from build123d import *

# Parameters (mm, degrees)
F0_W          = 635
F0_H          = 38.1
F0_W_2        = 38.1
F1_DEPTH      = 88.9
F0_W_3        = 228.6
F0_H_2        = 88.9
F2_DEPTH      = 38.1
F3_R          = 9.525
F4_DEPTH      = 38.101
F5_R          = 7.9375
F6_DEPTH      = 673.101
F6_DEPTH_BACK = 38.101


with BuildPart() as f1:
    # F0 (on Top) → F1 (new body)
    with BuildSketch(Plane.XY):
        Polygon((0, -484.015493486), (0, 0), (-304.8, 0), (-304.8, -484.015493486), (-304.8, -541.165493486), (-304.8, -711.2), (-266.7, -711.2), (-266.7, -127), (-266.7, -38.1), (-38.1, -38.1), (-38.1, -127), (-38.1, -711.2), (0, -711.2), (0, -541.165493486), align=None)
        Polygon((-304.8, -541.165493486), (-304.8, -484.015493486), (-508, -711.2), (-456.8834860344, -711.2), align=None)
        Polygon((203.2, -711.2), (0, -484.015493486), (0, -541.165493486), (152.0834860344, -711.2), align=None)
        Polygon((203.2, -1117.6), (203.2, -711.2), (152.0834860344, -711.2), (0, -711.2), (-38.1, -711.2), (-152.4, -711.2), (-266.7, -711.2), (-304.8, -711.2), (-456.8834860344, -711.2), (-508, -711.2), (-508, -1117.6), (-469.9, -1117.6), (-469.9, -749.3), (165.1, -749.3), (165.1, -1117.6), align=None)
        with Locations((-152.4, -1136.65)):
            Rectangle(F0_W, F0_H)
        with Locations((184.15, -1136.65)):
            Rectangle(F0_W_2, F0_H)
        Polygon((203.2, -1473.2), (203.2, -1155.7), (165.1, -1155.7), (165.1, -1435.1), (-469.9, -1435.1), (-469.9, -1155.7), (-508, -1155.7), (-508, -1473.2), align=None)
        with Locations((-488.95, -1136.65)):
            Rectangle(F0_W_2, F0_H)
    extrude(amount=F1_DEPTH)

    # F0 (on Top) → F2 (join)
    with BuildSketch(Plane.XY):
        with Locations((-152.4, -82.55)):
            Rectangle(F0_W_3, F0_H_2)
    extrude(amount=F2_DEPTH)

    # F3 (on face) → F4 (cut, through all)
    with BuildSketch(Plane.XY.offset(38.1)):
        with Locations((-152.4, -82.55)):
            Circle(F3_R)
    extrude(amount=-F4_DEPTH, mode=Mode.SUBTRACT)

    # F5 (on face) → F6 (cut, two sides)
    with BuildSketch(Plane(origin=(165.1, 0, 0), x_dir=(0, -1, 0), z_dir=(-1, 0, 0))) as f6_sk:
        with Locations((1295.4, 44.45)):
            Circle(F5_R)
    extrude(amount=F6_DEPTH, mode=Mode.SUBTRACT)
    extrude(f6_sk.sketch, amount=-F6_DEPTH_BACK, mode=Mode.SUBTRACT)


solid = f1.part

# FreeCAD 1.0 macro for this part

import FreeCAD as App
import Part
import Sketcher

V = App.Vector
Q = App.Units.Quantity

doc = App.newDocument("Part")
body = doc.addObject("PartDesign::Body", "Body")

# Sketch on XY plane
sketch1 = doc.addObject("Sketcher::SketchObject", "Sketch")
body.addObject(sketch1)
sketch1.AttachmentSupport = (doc.XY_Plane, [""])
sketch1.MapMode = "FlatFace"
sketch1.addGeometry(Part.LineSegment(V(-508, -711.2, 0), V(-508, -1473.2, 0)), False)
sketch1.addGeometry(Part.LineSegment(V(-508, -1473.2, 0), V(203.2, -1473.2, 0)), False)
sketch1.addGeometry(Part.LineSegment(V(203.2, -1473.2, 0), V(203.2, -711.2, 0)), False)
sketch1.addGeometry(Part.LineSegment(V(203.2, -711.2, 0), V(0, -484.015493, 0)), False)
sketch1.addGeometry(Part.LineSegment(V(0, -484.015493, 0), V(0, 0, 0)), False)
sketch1.addGeometry(Part.LineSegment(V(0, 0, 0), V(-304.8, 0, 0)), False)
sketch1.addGeometry(Part.LineSegment(V(-304.8, 0, 0), V(-304.8, -484.015493, 0)), False)
sketch1.addGeometry(Part.LineSegment(V(-304.8, -484.015493, 0), V(-508, -711.2, 0)), False)
sketch1.addGeometry(Part.LineSegment(V(-469.9, -1435.1, 0), V(-469.9, -1155.7, 0)), False)
sketch1.addGeometry(Part.LineSegment(V(-469.9, -1155.7, 0), V(165.1, -1155.7, 0)), False)
sketch1.addGeometry(Part.LineSegment(V(165.1, -1155.7, 0), V(165.1, -1435.1, 0)), False)
sketch1.addGeometry(Part.LineSegment(V(165.1, -1435.1, 0), V(-469.9, -1435.1, 0)), False)
sketch1.addGeometry(Part.LineSegment(V(165.1, -1117.6, 0), V(-469.9, -1117.6, 0)), False)
sketch1.addGeometry(Part.LineSegment(V(-469.9, -1117.6, 0), V(-469.9, -749.3, 0)), False)
sketch1.addGeometry(Part.LineSegment(V(-469.9, -749.3, 0), V(165.1, -749.3, 0)), False)
sketch1.addGeometry(Part.LineSegment(V(165.1, -749.3, 0), V(165.1, -1117.6, 0)), False)
sketch1.addGeometry(Part.LineSegment(V(-456.883486, -711.2, 0), V(-304.8, -541.165493, 0)), False)
sketch1.addGeometry(Part.LineSegment(V(-304.8, -541.165493, 0), V(-304.8, -711.2, 0)), False)
sketch1.addGeometry(Part.LineSegment(V(-304.8, -711.2, 0), V(-456.883486, -711.2, 0)), False)
sketch1.addGeometry(Part.LineSegment(V(0, -711.2, 0), V(0, -541.165493, 0)), False)
sketch1.addGeometry(Part.LineSegment(V(0, -541.165493, 0), V(152.083486, -711.2, 0)), False)
sketch1.addGeometry(Part.LineSegment(V(152.083486, -711.2, 0), V(0, -711.2, 0)), False)
sketch1.addGeometry(Part.LineSegment(V(-266.7, -711.2, 0), V(-266.7, -38.1, 0)), False)
sketch1.addGeometry(Part.LineSegment(V(-266.7, -38.1, 0), V(-38.1, -38.1, 0)), False)
sketch1.addGeometry(Part.LineSegment(V(-38.1, -38.1, 0), V(-38.1, -711.2, 0)), False)
sketch1.addGeometry(Part.LineSegment(V(-38.1, -711.2, 0), V(-266.7, -711.2, 0)), False)
sketch1.addConstraint(Sketcher.Constraint("Coincident", 0, 2, 1, 1))
sketch1.addConstraint(Sketcher.Constraint("Coincident", 1, 2, 2, 1))
sketch1.addConstraint(Sketcher.Constraint("Coincident", 2, 2, 3, 1))
sketch1.addConstraint(Sketcher.Constraint("Coincident", 3, 2, 4, 1))
sketch1.addConstraint(Sketcher.Constraint("Coincident", 4, 2, 5, 1))
sketch1.addConstraint(Sketcher.Constraint("Coincident", 5, 2, 6, 1))
sketch1.addConstraint(Sketcher.Constraint("Coincident", 6, 2, 7, 1))
sketch1.addConstraint(Sketcher.Constraint("Coincident", 7, 2, 0, 1))
sketch1.addConstraint(Sketcher.Constraint("Coincident", 8, 2, 9, 1))
sketch1.addConstraint(Sketcher.Constraint("Coincident", 9, 2, 10, 1))
sketch1.addConstraint(Sketcher.Constraint("Coincident", 10, 2, 11, 1))
sketch1.addConstraint(Sketcher.Constraint("Coincident", 11, 2, 8, 1))
sketch1.addConstraint(Sketcher.Constraint("Coincident", 12, 2, 13, 1))
sketch1.addConstraint(Sketcher.Constraint("Coincident", 13, 2, 14, 1))
sketch1.addConstraint(Sketcher.Constraint("Coincident", 14, 2, 15, 1))
sketch1.addConstraint(Sketcher.Constraint("Coincident", 15, 2, 12, 1))
sketch1.addConstraint(Sketcher.Constraint("Coincident", 16, 2, 17, 1))
sketch1.addConstraint(Sketcher.Constraint("Coincident", 17, 2, 18, 1))
sketch1.addConstraint(Sketcher.Constraint("Coincident", 18, 2, 16, 1))
sketch1.addConstraint(Sketcher.Constraint("Coincident", 19, 2, 20, 1))
sketch1.addConstraint(Sketcher.Constraint("Coincident", 20, 2, 21, 1))
sketch1.addConstraint(Sketcher.Constraint("Coincident", 21, 2, 19, 1))
sketch1.addConstraint(Sketcher.Constraint("Coincident", 22, 2, 23, 1))
sketch1.addConstraint(Sketcher.Constraint("Coincident", 23, 2, 24, 1))
sketch1.addConstraint(Sketcher.Constraint("Coincident", 24, 2, 25, 1))
sketch1.addConstraint(Sketcher.Constraint("Coincident", 25, 2, 22, 1))
sketch1.addConstraint(Sketcher.Constraint("Vertical", 0))
sketch1.addConstraint(Sketcher.Constraint("Horizontal", 1))
sketch1.addConstraint(Sketcher.Constraint("Vertical", 2))
sketch1.addConstraint(Sketcher.Constraint("Vertical", 4))
sketch1.addConstraint(Sketcher.Constraint("Horizontal", 5))
sketch1.addConstraint(Sketcher.Constraint("Vertical", 6))
sketch1.addConstraint(Sketcher.Constraint("Vertical", 8))
sketch1.addConstraint(Sketcher.Constraint("Horizontal", 9))
sketch1.addConstraint(Sketcher.Constraint("Vertical", 10))
sketch1.addConstraint(Sketcher.Constraint("Horizontal", 11))
sketch1.addConstraint(Sketcher.Constraint("Horizontal", 12))
sketch1.addConstraint(Sketcher.Constraint("Vertical", 13))
sketch1.addConstraint(Sketcher.Constraint("Horizontal", 14))
sketch1.addConstraint(Sketcher.Constraint("Vertical", 15))
sketch1.addConstraint(Sketcher.Constraint("Vertical", 17))
sketch1.addConstraint(Sketcher.Constraint("Horizontal", 18))
sketch1.addConstraint(Sketcher.Constraint("Vertical", 19))
sketch1.addConstraint(Sketcher.Constraint("Horizontal", 21))
sketch1.addConstraint(Sketcher.Constraint("Vertical", 22))
sketch1.addConstraint(Sketcher.Constraint("Horizontal", 23))
sketch1.addConstraint(Sketcher.Constraint("Vertical", 24))
sketch1.addConstraint(Sketcher.Constraint("Horizontal", 25))
sketch1.addConstraint(Sketcher.Constraint("Coincident", 4, 2, -1, 1))
sketch1.addConstraint(Sketcher.Constraint("PointOnObject", 19, 2, -2))
sketch1.addConstraint(Sketcher.Constraint("Parallel", 7, 16))
sketch1.addConstraint(Sketcher.Constraint("Parallel", 3, 20))
sketch1.addConstraint(Sketcher.Constraint("Horizontal", 3, 2, 6, 2))
sketch1.addConstraint(Sketcher.Constraint("Horizontal", 2, 2, 7, 2))
sketch1.addConstraint(Sketcher.Constraint("Horizontal", 7, 2, 17, 2))
sketch1.addConstraint(Sketcher.Constraint("Horizontal", 16, 2, 19, 2))
sketch1.addConstraint(Sketcher.Constraint("Horizontal", 18, 2, 20, 2))
sketch1.addConstraint(Sketcher.Constraint("Horizontal", 21, 2, 24, 2))
sketch1.addConstraint(Sketcher.Constraint("Vertical", 11, 2, 12, 2))
sketch1.addConstraint(Sketcher.Constraint("Vertical", 10, 2, 14, 2))
sketch1.addConstraint(Sketcher.Constraint("Vertical", 6, 2, 16, 2))
sketch1.addConstraint(Sketcher.Constraint("Equal", 18, 21))
sketch1.addConstraint(Sketcher.Constraint("DistanceX", 1, 1, 1, 2, Q("28 in")))
sketch1.addConstraint(Sketcher.Constraint("DistanceX", 5, 2, 5, 1, Q("12 in")))
sketch1.addConstraint(Sketcher.Constraint("DistanceX", 9, 1, 9, 2, Q("25 in")))
sketch1.addConstraint(Sketcher.Constraint("DistanceX", 23, 1, 23, 2, Q("9 in")))
sketch1.addConstraint(Sketcher.Constraint("DistanceY", 0, 2, 0, 1, Q("30 in")))
sketch1.addConstraint(Sketcher.Constraint("DistanceY", 8, 1, 8, 2, Q("11 in")))
sketch1.addConstraint(Sketcher.Constraint("Distance", 3, Q("12 in")))
sketch1.addConstraint(Sketcher.Constraint("DistanceY", 13, 1, 13, 2, Q("14.5 in")))
sketch1.addConstraint(Sketcher.Constraint("DistanceY", 22, 1, 22, 2, Q("26.5 in")))
sketch1.addConstraint(Sketcher.Constraint("DistanceY", 0, 2, -1, 1, Q("58 in")))
sketch1.addConstraint(Sketcher.Constraint("DistanceY", 12, 2, -1, 1, Q("44 in")))
sketch1.addConstraint(Sketcher.Constraint("DistanceY", 8, 2, 13, 2, Q("16 in")))
sketch1.addConstraint(Sketcher.Constraint("DistanceX", 24, 2, 14, 2, Q("8 in")))
sketch1.addConstraint(Sketcher.Constraint("DistanceX", 8, 2, -1, 1, Q("18.5 in")))
sketch1.addConstraint(Sketcher.Constraint("DistanceY", 16, 2, 6, 2, Q("2.25 in")))
pad1 = doc.addObject("PartDesign::Pad", "Pad")
body.addObject(pad1)
pad1.Profile = sketch1
pad1.Length = Q("3.5 in")

# Sketch on XY plane
sketch2 = doc.addObject("Sketcher::SketchObject", "Sketch001")
body.addObject(sketch2)
sketch2.AttachmentSupport = (doc.XY_Plane, [""])
sketch2.MapMode = "FlatFace"
sketch2.addGeometry(Part.LineSegment(V(-266.7, -38.1, 0), V(-266.7, -127, 0)), False)
sketch2.addGeometry(Part.LineSegment(V(-266.7, -127, 0), V(-38.1, -127, 0)), False)
sketch2.addGeometry(Part.LineSegment(V(-38.1, -127, 0), V(-38.1, -38.1, 0)), False)
sketch2.addGeometry(Part.LineSegment(V(-38.1, -38.1, 0), V(-266.7, -38.1, 0)), False)
sketch2.addConstraint(Sketcher.Constraint("Coincident", 0, 2, 1, 1))
sketch2.addConstraint(Sketcher.Constraint("Coincident", 1, 2, 2, 1))
sketch2.addConstraint(Sketcher.Constraint("Coincident", 2, 2, 3, 1))
sketch2.addConstraint(Sketcher.Constraint("Coincident", 3, 2, 0, 1))
sketch2.addConstraint(Sketcher.Constraint("Vertical", 0))
sketch2.addConstraint(Sketcher.Constraint("Horizontal", 1))
sketch2.addConstraint(Sketcher.Constraint("Vertical", 2))
sketch2.addConstraint(Sketcher.Constraint("Horizontal", 3))
sketch2.addConstraint(Sketcher.Constraint("DistanceX", 1, 1, 1, 2, Q("9 in")))
sketch2.addConstraint(Sketcher.Constraint("DistanceY", 0, 2, 0, 1, Q("3.5 in")))
sketch2.addConstraint(Sketcher.Constraint("DistanceY", 0, 2, -1, 1, Q("5 in")))
sketch2.addConstraint(Sketcher.Constraint("DistanceX", 0, 2, -1, 1, Q("10.5 in")))
pad2 = doc.addObject("PartDesign::Pad", "Pad001")
body.addObject(pad2)
pad2.Profile = sketch2
pad2.Length = Q("1.5 in")

# Sketch on XY plane
sketch3 = doc.addObject("Sketcher::SketchObject", "Sketch002")
body.addObject(sketch3)
sketch3.AttachmentSupport = (doc.XY_Plane, [""])
sketch3.MapMode = "FlatFace"
sketch3.AttachmentOffset = App.Placement(V(0, 0, 1.5 * 25.4), App.Rotation())
sketch3.addGeometry(Part.Circle(V(-152.4, -82.55, 0), V(0, 0, 1), 9.525), False)
sketch3.addConstraint(Sketcher.Constraint("Diameter", 0, Q("0.75 in")))
sketch3.addConstraint(Sketcher.Constraint("DistanceX", 0, 3, -1, 1, Q("6 in")))
sketch3.addConstraint(Sketcher.Constraint("DistanceY", 0, 3, -1, 1, Q("3.25 in")))
pocket1 = doc.addObject("PartDesign::Pocket", "Pocket")
body.addObject(pocket1)
pocket1.Profile = sketch3
pocket1.Type = "ThroughAll"

# Sketch on YZ plane
sketch4 = doc.addObject("Sketcher::SketchObject", "Sketch003")
body.addObject(sketch4)
sketch4.AttachmentSupport = (doc.YZ_Plane, [""])
sketch4.MapMode = "FlatFace"
sketch4.AttachmentOffset = App.Placement(V(0, 0, 6.5 * 25.4), App.Rotation())
sketch4.addGeometry(Part.Circle(V(-1295.4, 44.45, 0), V(0, 0, 1), 7.9375), False)
sketch4.addConstraint(Sketcher.Constraint("Diameter", 0, Q("0.625 in")))
sketch4.addConstraint(Sketcher.Constraint("DistanceX", 0, 3, -1, 1, Q("51 in")))
sketch4.addConstraint(Sketcher.Constraint("DistanceY", -1, 1, 0, 3, Q("1.75 in")))
pocket2 = doc.addObject("PartDesign::Pocket", "Pocket001")
body.addObject(pocket2)
pocket2.Profile = sketch4
pocket2.Type = "ThroughAll"
pocket2.Midplane = True

doc.recompute()
